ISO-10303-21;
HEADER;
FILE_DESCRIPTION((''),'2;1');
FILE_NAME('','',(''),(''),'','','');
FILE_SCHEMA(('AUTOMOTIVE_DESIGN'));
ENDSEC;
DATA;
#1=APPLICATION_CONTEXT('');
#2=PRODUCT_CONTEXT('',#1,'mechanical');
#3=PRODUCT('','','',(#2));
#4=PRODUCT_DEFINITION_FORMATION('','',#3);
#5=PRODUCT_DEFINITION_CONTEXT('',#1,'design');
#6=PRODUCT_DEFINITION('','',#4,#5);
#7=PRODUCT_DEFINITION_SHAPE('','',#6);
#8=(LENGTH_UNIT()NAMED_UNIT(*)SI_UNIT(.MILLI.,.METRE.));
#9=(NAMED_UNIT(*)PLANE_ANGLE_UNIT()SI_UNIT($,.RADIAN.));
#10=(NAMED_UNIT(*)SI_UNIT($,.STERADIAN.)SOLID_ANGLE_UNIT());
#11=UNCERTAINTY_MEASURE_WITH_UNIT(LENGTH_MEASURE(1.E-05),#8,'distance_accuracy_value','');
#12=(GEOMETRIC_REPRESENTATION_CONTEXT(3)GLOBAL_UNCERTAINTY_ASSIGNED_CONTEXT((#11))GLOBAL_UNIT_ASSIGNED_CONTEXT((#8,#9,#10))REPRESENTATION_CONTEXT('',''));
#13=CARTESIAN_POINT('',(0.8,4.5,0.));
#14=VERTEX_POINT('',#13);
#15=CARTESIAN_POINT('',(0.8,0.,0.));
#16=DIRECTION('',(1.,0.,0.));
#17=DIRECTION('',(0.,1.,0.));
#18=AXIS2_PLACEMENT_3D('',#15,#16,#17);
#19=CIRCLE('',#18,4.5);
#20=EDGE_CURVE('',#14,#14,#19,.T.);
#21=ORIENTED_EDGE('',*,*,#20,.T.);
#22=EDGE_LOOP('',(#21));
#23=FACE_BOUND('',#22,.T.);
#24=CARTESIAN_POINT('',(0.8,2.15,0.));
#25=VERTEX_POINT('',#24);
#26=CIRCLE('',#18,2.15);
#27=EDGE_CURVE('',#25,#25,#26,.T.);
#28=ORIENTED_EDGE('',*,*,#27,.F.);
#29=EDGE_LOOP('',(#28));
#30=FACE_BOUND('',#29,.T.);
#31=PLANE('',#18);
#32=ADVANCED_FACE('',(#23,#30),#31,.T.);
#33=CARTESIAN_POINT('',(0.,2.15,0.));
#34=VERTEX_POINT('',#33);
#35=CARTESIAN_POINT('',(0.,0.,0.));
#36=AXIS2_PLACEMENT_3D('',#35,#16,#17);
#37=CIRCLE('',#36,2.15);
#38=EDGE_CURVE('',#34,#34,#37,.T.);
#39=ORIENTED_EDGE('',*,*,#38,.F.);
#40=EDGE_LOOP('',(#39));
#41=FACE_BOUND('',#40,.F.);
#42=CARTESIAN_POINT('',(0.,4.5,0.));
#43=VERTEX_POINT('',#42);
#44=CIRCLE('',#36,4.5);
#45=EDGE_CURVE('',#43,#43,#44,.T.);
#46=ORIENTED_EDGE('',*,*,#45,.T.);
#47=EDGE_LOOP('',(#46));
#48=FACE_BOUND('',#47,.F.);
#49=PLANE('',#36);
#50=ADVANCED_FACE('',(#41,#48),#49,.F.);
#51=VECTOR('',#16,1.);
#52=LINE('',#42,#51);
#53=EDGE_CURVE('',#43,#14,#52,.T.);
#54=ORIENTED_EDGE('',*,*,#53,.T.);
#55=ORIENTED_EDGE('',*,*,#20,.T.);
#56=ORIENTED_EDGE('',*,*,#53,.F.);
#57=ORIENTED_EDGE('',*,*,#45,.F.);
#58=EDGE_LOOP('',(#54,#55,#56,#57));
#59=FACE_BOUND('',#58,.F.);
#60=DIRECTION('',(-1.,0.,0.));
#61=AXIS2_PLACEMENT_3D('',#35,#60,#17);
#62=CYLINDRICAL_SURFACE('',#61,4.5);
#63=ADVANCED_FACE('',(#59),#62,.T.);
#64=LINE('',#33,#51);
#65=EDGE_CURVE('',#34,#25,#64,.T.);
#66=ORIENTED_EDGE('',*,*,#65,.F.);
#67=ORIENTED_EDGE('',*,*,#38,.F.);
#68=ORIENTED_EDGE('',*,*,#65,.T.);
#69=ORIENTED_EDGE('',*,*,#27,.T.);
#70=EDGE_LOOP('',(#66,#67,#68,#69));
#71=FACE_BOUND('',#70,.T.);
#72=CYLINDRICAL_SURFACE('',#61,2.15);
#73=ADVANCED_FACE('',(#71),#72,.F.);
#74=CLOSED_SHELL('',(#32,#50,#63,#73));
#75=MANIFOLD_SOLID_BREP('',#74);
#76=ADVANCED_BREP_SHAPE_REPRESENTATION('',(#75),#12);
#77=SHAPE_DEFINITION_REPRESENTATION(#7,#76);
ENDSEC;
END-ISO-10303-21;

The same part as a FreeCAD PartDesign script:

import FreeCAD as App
import Part
import Sketcher

V = App.Vector

doc = App.newDocument("Part")
params = doc.addObject("Spreadsheet::Sheet", "Params")
for row, (alias, value) in enumerate([
    ("sketch1_diameter", "9 mm"),
    ("sketch1_diameter2", "4.3 mm"),
    ("pad1_length", "0.8 mm"),
], start=1):
    params.set(f"A{row}", alias)
    params.set(f"B{row}", "=" + value)
    params.setAlias(f"B{row}", alias)

body = doc.addObject("PartDesign::Body", "Body")

sketch1 = doc.addObject("Sketcher::SketchObject", "Sketch")
body.addObject(sketch1)
sketch1.AttachmentSupport = (doc.YZ_Plane, [""])
sketch1.MapMode = "FlatFace"
sketch1.addGeometry(Part.Circle(V(0, 0, 0), V(0, 0, 1), 4.5), False)
sketch1.addGeometry(Part.Circle(V(0, 0, 0), V(0, 0, 1), 2.15), False)
sketch1.addConstraint(Sketcher.Constraint("Coincident", 0, 3, -1, 1))
sketch1.addConstraint(Sketcher.Constraint("Coincident", 1, 3, -1, 1))
sketch1.addConstraint(Sketcher.Constraint("Diameter", 0, 9.0))
sketch1.addConstraint(Sketcher.Constraint("Diameter", 1, 4.3))
sketch1.setExpression("Constraints[2]", "Params.sketch1_diameter")
sketch1.setExpression("Constraints[3]", "Params.sketch1_diameter2")
pad1 = doc.addObject("PartDesign::Pad", "Pad")
body.addObject(pad1)
pad1.Profile = sketch1
pad1.setExpression("Length", "Params.pad1_length")

doc.recompute()
